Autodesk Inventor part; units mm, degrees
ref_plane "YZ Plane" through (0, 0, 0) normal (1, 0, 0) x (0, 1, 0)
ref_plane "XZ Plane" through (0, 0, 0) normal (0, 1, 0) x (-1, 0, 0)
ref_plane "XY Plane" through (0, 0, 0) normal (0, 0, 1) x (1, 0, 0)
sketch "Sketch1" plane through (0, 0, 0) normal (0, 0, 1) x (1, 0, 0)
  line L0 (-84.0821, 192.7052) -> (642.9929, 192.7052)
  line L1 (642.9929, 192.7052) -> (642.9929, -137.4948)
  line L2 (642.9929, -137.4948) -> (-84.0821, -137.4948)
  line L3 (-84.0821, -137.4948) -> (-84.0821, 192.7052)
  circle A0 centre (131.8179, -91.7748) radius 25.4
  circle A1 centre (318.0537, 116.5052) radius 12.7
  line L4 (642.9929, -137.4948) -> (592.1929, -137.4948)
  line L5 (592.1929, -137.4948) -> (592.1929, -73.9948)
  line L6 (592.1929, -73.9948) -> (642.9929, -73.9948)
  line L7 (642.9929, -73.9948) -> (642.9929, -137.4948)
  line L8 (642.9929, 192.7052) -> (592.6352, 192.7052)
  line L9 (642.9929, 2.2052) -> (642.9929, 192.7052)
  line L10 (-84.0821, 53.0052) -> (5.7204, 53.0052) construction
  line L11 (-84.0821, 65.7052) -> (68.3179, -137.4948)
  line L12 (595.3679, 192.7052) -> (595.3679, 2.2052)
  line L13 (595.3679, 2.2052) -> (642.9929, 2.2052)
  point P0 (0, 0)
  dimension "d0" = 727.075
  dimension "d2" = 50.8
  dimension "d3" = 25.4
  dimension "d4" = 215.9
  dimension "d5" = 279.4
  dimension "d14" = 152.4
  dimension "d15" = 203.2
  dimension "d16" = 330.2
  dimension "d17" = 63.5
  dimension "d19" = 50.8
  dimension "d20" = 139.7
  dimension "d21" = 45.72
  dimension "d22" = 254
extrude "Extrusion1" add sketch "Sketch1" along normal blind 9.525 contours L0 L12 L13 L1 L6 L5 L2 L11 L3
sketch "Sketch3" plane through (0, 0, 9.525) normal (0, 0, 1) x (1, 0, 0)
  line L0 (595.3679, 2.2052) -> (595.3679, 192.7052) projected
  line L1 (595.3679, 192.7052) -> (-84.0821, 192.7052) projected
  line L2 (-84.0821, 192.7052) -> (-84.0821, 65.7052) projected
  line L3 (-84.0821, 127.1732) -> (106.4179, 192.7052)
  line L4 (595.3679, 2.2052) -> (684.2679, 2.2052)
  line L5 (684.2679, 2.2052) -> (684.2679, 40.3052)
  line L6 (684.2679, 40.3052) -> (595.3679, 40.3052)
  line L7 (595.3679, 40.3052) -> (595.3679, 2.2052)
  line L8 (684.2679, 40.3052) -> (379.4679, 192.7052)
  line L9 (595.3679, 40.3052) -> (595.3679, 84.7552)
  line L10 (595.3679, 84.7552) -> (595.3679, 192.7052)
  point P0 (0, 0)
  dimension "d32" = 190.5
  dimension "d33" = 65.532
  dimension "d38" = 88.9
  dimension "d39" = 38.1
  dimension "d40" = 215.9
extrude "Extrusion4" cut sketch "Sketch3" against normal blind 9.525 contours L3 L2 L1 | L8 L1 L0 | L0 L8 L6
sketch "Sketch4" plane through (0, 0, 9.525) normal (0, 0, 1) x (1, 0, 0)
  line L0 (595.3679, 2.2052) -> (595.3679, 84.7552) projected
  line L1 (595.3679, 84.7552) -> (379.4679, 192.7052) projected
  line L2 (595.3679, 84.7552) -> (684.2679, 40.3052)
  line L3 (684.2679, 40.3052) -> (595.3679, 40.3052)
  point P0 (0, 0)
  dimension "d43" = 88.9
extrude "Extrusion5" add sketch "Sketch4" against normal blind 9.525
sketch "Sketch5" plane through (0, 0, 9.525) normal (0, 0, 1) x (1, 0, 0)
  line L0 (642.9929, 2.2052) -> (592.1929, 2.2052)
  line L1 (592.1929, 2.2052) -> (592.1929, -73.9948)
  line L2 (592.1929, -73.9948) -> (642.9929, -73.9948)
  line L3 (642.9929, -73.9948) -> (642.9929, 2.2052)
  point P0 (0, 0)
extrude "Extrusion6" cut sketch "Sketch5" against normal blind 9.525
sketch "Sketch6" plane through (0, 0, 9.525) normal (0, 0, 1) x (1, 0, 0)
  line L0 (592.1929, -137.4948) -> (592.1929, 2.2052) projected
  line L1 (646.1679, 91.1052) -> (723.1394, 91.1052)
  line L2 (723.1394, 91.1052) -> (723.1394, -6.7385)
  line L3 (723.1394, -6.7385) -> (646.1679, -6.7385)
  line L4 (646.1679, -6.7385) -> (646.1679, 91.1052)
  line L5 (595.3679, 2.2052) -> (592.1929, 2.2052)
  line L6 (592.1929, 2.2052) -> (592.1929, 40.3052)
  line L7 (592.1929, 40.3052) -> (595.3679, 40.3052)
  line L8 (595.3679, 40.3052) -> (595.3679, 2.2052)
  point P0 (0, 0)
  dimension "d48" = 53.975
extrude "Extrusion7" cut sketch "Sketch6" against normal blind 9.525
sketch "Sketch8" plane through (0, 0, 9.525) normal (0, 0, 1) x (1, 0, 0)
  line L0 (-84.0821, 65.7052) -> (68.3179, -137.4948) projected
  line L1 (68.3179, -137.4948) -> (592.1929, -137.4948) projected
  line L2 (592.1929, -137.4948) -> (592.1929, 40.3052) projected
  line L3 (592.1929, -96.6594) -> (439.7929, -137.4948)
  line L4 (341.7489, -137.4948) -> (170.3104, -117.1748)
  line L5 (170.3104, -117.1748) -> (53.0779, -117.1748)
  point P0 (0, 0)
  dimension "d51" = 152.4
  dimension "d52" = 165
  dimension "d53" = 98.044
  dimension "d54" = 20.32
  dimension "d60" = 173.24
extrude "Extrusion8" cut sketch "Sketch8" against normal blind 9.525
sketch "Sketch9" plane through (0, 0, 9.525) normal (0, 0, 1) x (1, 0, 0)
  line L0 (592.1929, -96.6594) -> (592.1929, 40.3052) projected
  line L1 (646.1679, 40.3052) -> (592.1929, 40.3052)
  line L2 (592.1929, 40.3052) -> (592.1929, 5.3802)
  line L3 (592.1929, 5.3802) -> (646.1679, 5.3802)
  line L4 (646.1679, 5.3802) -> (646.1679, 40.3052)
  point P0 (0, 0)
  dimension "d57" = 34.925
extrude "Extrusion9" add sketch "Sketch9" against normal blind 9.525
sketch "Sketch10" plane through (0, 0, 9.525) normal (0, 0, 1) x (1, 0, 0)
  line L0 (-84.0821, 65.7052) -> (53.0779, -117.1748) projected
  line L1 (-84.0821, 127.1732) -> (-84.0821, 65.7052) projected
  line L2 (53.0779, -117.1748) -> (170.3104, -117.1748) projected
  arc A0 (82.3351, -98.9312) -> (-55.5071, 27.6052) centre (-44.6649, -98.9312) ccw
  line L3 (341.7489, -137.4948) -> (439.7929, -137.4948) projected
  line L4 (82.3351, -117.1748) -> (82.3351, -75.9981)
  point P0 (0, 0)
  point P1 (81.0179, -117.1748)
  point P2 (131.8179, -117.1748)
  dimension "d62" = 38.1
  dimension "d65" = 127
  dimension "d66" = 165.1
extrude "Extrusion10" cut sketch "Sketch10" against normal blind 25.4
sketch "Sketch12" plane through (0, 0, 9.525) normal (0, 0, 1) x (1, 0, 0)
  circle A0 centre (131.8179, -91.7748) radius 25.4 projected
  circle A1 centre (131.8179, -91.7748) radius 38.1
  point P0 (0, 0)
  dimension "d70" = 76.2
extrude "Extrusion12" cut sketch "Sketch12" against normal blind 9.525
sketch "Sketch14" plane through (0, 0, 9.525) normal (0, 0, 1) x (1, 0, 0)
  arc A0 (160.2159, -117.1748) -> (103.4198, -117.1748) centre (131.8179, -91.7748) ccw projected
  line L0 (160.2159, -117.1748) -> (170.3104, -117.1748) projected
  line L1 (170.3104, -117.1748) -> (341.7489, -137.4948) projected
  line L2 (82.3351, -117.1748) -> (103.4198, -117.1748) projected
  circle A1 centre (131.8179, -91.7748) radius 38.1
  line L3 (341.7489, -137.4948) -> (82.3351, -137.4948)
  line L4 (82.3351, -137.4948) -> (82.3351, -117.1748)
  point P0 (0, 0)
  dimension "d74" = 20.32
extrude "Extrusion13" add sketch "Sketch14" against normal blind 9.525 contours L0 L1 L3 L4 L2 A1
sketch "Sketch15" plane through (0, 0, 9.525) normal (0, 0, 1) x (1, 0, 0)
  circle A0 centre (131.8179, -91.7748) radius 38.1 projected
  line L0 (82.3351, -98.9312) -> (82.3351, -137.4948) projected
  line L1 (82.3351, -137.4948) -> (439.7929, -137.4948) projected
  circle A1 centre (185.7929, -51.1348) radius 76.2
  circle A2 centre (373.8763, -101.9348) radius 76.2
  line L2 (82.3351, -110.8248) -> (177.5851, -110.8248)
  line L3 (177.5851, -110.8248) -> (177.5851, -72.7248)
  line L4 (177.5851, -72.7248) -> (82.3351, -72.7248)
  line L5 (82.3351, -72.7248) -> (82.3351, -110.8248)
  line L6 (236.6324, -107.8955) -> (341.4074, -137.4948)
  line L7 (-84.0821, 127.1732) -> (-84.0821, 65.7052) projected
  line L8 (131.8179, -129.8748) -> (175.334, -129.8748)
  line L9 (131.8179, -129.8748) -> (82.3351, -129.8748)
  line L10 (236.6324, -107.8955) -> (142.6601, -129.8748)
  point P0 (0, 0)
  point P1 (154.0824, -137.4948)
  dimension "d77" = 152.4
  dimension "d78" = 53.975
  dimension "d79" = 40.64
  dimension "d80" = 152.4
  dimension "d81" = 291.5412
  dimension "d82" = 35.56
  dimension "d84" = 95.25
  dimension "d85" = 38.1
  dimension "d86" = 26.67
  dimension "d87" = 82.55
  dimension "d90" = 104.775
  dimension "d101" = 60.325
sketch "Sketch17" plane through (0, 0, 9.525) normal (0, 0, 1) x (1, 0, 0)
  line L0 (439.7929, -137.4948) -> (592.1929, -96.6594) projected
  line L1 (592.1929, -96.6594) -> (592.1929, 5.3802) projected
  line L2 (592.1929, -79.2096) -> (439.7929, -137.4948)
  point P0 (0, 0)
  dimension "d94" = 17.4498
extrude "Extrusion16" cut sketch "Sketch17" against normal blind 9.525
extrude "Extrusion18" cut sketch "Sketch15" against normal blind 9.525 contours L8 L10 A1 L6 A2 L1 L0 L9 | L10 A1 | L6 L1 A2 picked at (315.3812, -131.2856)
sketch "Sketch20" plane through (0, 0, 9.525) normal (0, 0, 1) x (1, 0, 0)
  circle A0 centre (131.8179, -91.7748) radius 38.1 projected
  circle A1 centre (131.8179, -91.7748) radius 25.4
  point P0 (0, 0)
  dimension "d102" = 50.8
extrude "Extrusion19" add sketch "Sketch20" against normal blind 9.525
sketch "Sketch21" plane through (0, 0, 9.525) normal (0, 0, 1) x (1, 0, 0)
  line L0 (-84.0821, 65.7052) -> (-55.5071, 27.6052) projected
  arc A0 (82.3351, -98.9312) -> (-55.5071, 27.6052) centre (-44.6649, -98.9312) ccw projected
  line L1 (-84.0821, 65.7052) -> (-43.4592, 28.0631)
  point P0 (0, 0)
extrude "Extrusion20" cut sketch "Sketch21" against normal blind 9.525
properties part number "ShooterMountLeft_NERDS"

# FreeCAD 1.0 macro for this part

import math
import FreeCAD as App
import Part
import Sketcher

V = App.Vector
Q = App.Units.Quantity

doc = App.newDocument("Part")
body = doc.addObject("PartDesign::Body", "Body")

# Sketch on XY plane
sketch1 = body.newObject("Sketcher::SketchObject", "Sketch")
sketch1.AttachmentSupport = (doc.getObject("XY_Plane"), [""])
sketch1.MapMode = "FlatFace"
sketch1.addGeometry(Part.LineSegment(V(595, 193, 0), V(-84, 193, 0)), False)
sketch1.addGeometry(Part.LineSegment(V(-84, 193, 0), V(-84, 66, 0)), False)
sketch1.addGeometry(Part.LineSegment(V(-84, 66, 0), V(68, -137, 0)), False)
sketch1.addGeometry(Part.LineSegment(V(68, -137, 0), V(592, -137, 0)), False)
sketch1.addGeometry(Part.LineSegment(V(592, -137, 0), V(592, -74, 0)), False)
sketch1.addGeometry(Part.LineSegment(V(592, -74, 0), V(643, -74, 0)), False)
sketch1.addGeometry(Part.LineSegment(V(643, -74, 0), V(643, 2, 0)), False)
sketch1.addGeometry(Part.LineSegment(V(643, 2, 0), V(595, 2, 0)), False)
sketch1.addGeometry(Part.LineSegment(V(595, 2, 0), V(595, 193, 0)), False)
sketch1.addGeometry(Part.Circle(V(132, -92, 0), V(0, 0, 1), 25), False)
sketch1.addGeometry(Part.Circle(V(318, 117, 0), V(0, 0, 1), 13), False)
sketch1.addConstraint(Sketcher.Constraint("Coincident", 0, 2, 1, 1))
sketch1.addConstraint(Sketcher.Constraint("Coincident", 1, 2, 2, 1))
sketch1.addConstraint(Sketcher.Constraint("Coincident", 2, 2, 3, 1))
sketch1.addConstraint(Sketcher.Constraint("Coincident", 3, 2, 4, 1))
sketch1.addConstraint(Sketcher.Constraint("Coincident", 4, 2, 5, 1))
sketch1.addConstraint(Sketcher.Constraint("Coincident", 5, 2, 6, 1))
sketch1.addConstraint(Sketcher.Constraint("Coincident", 6, 2, 7, 1))
sketch1.addConstraint(Sketcher.Constraint("Coincident", 7, 2, 8, 1))
sketch1.addConstraint(Sketcher.Constraint("Coincident", 8, 2, 0, 1))
sketch1.addConstraint(Sketcher.Constraint("Horizontal", 0))
sketch1.addConstraint(Sketcher.Constraint("Vertical", 1))
sketch1.addConstraint(Sketcher.Constraint("Horizontal", 3))
sketch1.addConstraint(Sketcher.Constraint("Vertical", 4))
sketch1.addConstraint(Sketcher.Constraint("Horizontal", 5))
sketch1.addConstraint(Sketcher.Constraint("Vertical", 6))
sketch1.addConstraint(Sketcher.Constraint("Horizontal", 7))
sketch1.addConstraint(Sketcher.Constraint("Vertical", 8))
sketch1.addConstraint(Sketcher.Constraint("Diameter", 9, Q("2 in")))
sketch1.addConstraint(Sketcher.Constraint("Diameter", 10, Q("1 in")))
sketch1.addConstraint(Sketcher.Constraint("DistanceX", 5, 1, 5, 2, Q("2 in")))
sketch1.addConstraint(Sketcher.Constraint("Distance", 2, Q("10 in")))
sketch1.addConstraint(Sketcher.Constraint("DistanceY", 4, 1, 4, 2, Q("2.5 in")))
sketch1.addConstraint(Sketcher.Constraint("DistanceY", 1, 2, 10, 3, Q("2 in")))
sketch1.addConstraint(Sketcher.Constraint("DistanceX", 1, 2, 2, 2, Q("6 in")))
sketch1.addConstraint(Sketcher.Constraint("DistanceY", 2, 2, 0, 2, Q("13 in")))
sketch1.addConstraint(Sketcher.Constraint("DistanceX", 0, 2, 9, 3, Q("8.5 in")))
sketch1.addConstraint(Sketcher.Constraint("DistanceY", 2, 2, 9, 3, Q("1.8 in")))
sketch1.addConstraint(Sketcher.Constraint("DistanceY", 3, 2, 6, 2, Q("5.5 in")))
sketch1.addConstraint(Sketcher.Constraint("DistanceX", 0, 2, 0, 1, Q("26.75 in")))
sketch1.addConstraint(Sketcher.Constraint("DistanceX", 3, 1, 3, 2, Q("20.625 in")))
sketch1.addConstraint(Sketcher.Constraint("DistanceX", -1, 1, 10, 3, Q("12.5218 in")))
sketch1.addConstraint(Sketcher.Constraint("DistanceX", -1, 1, 9, 3, Q("131.818 mm")))
sketch1.addConstraint(Sketcher.Constraint("DistanceY", 9, 3, -1, 1, Q("91.7748 mm")))
pad1 = body.newObject("PartDesign::Pad", "Pad")
pad1.Profile = sketch1
pad1.Length = Q("0.375 in")

# Sketch on XY plane
sketch2 = body.newObject("Sketcher::SketchObject", "Sketch001")
sketch2.AttachmentSupport = (doc.getObject("XY_Plane"), [""])
sketch2.MapMode = "FlatFace"
sketch2.AttachmentOffset = App.Placement(V(0, 0, 0.375 * 25.4), App.Rotation())
sketch2.addGeometry(Part.LineSegment(V(-84, 127, 0), V(106, 193, 0)), False)
sketch2.addGeometry(Part.LineSegment(V(106, 193, 0), V(-84, 193, 0)), False)
sketch2.addGeometry(Part.LineSegment(V(-84, 193, 0), V(-84, 127, 0)), False)
sketch2.addGeometry(Part.LineSegment(V(379, 193, 0), V(595, 85, 0)), False)
sketch2.addGeometry(Part.LineSegment(V(595, 85, 0), V(595, 193, 0)), False)
sketch2.addGeometry(Part.LineSegment(V(595, 193, 0), V(379, 193, 0)), False)
sketch2.addGeometry(Part.LineSegment(V(595, 85, 0), V(595, 40, 0)), False)
sketch2.addGeometry(Part.LineSegment(V(595, 40, 0), V(684, 40, 0)), False)
sketch2.addGeometry(Part.LineSegment(V(684, 40, 0), V(595, 85, 0)), False)
sketch2.addConstraint(Sketcher.Constraint("Coincident", 0, 2, 1, 1))
sketch2.addConstraint(Sketcher.Constraint("Coincident", 1, 2, 2, 1))
sketch2.addConstraint(Sketcher.Constraint("Coincident", 2, 2, 0, 1))
sketch2.addConstraint(Sketcher.Constraint("Coincident", 3, 2, 4, 1))
sketch2.addConstraint(Sketcher.Constraint("Coincident", 4, 2, 5, 1))
sketch2.addConstraint(Sketcher.Constraint("Coincident", 5, 2, 3, 1))
sketch2.addConstraint(Sketcher.Constraint("Coincident", 6, 2, 7, 1))
sketch2.addConstraint(Sketcher.Constraint("Coincident", 7, 2, 8, 1))
sketch2.addConstraint(Sketcher.Constraint("Coincident", 8, 2, 6, 1))
sketch2.addConstraint(Sketcher.Constraint("Horizontal", 1))
sketch2.addConstraint(Sketcher.Constraint("Vertical", 2))
sketch2.addConstraint(Sketcher.Constraint("Vertical", 4))
sketch2.addConstraint(Sketcher.Constraint("Horizontal", 5))
sketch2.addConstraint(Sketcher.Constraint("Vertical", 6))
sketch2.addConstraint(Sketcher.Constraint("Horizontal", 7))
sketch2.addConstraint(Sketcher.Constraint("Coincident", 8, 2, 3, 2))
sketch2.addConstraint(Sketcher.Constraint("Parallel", 3, 8))
sketch2.addConstraint(Sketcher.Constraint("Horizontal", 1, 2, 4, 2))
sketch2.addConstraint(Sketcher.Constraint("DistanceX", 1, 2, 1, 1, Q("7.5 in")))
sketch2.addConstraint(Sketcher.Constraint("DistanceX", 5, 2, 5, 1, Q("8.5 in")))
sketch2.addConstraint(Sketcher.Constraint("DistanceX", 7, 1, 7, 2, Q("3.5 in")))
sketch2.addConstraint(Sketcher.Constraint("DistanceY", 2, 2, 2, 1, Q("2.58 in")))
sketch2.addConstraint(Sketcher.Constraint("DistanceY", 6, 2, 4, 2, Q("6 in")))
sketch2.addConstraint(Sketcher.Constraint("DistanceX", 0, 2, 3, 2, Q("19.25 in")))
sketch2.addConstraint(Sketcher.Constraint("DistanceX", -1, 1, 0, 2, Q("106.418 mm")))
sketch2.addConstraint(Sketcher.Constraint("DistanceY", -1, 1, 0, 2, Q("192.7052 mm")))
pocket1 = body.newObject("PartDesign::Pocket", "Pocket")
pocket1.Profile = sketch2
pocket1.Length = Q("0.375 in")

# Sketch on XY plane
sketch3 = body.newObject("Sketcher::SketchObject", "Sketch002")
sketch3.AttachmentSupport = (doc.getObject("XY_Plane"), [""])
sketch3.MapMode = "FlatFace"
sketch3.AttachmentOffset = App.Placement(V(0, 0, 0.375 * 25.4), App.Rotation())
sketch3.addGeometry(Part.LineSegment(V(595, 85, 0), V(595, 40, 0)), False)
sketch3.addGeometry(Part.LineSegment(V(595, 40, 0), V(684, 40, 0)), False)
sketch3.addGeometry(Part.LineSegment(V(684, 40, 0), V(595, 85, 0)), False)
sketch3.addConstraint(Sketcher.Constraint("Coincident", 0, 2, 1, 1))
sketch3.addConstraint(Sketcher.Constraint("Coincident", 1, 2, 2, 1))
sketch3.addConstraint(Sketcher.Constraint("Coincident", 2, 2, 0, 1))
sketch3.addConstraint(Sketcher.Constraint("Vertical", 0))
sketch3.addConstraint(Sketcher.Constraint("Horizontal", 1))
sketch3.addConstraint(Sketcher.Constraint("DistanceX", 1, 1, 1, 2, Q("3.5 in")))
sketch3.addConstraint(Sketcher.Constraint("DistanceY", 0, 2, 0, 1, Q("1.75 in")))
sketch3.addConstraint(Sketcher.Constraint("DistanceX", -1, 1, 0, 2, Q("595.368 mm")))
sketch3.addConstraint(Sketcher.Constraint("DistanceY", -1, 1, 0, 2, Q("40.3052 mm")))
pad2 = body.newObject("PartDesign::Pad", "Pad001")
pad2.Profile = sketch3
pad2.Length = Q("0.375 in")
pad2.Reversed = True

# Sketch on XY plane
sketch4 = body.newObject("Sketcher::SketchObject", "Sketch003")
sketch4.AttachmentSupport = (doc.getObject("XY_Plane"), [""])
sketch4.MapMode = "FlatFace"
sketch4.AttachmentOffset = App.Placement(V(0, 0, 0.375 * 25.4), App.Rotation())
sketch4.addGeometry(Part.LineSegment(V(643, -74, 0), V(643, 2, 0)), False)
sketch4.addGeometry(Part.LineSegment(V(643, 2, 0), V(592, 2, 0)), False)
sketch4.addGeometry(Part.LineSegment(V(592, 2, 0), V(592, -74, 0)), False)
sketch4.addGeometry(Part.LineSegment(V(592, -74, 0), V(643, -74, 0)), False)
sketch4.addConstraint(Sketcher.Constraint("Coincident", 0, 2, 1, 1))
sketch4.addConstraint(Sketcher.Constraint("Coincident", 1, 2, 2, 1))
sketch4.addConstraint(Sketcher.Constraint("Coincident", 2, 2, 3, 1))
sketch4.addConstraint(Sketcher.Constraint("Coincident", 3, 2, 0, 1))
sketch4.addConstraint(Sketcher.Constraint("Vertical", 0))
sketch4.addConstraint(Sketcher.Constraint("Horizontal", 1))
sketch4.addConstraint(Sketcher.Constraint("Vertical", 2))
sketch4.addConstraint(Sketcher.Constraint("Horizontal", 3))
sketch4.addConstraint(Sketcher.Constraint("DistanceX", 1, 2, 1, 1, Q("2 in")))
sketch4.addConstraint(Sketcher.Constraint("DistanceY", 0, 1, 0, 2, Q("3 in")))
sketch4.addConstraint(Sketcher.Constraint("DistanceX", -1, 1, 0, 2, Q("642.993 mm")))
sketch4.addConstraint(Sketcher.Constraint("DistanceY", -1, 1, 0, 2, Q("2.2052 mm")))
pocket2 = body.newObject("PartDesign::Pocket", "Pocket001")
pocket2.Profile = sketch4
pocket2.Length = Q("0.375 in")

# Sketch on XY plane
sketch5 = body.newObject("Sketcher::SketchObject", "Sketch004")
sketch5.AttachmentSupport = (doc.getObject("XY_Plane"), [""])
sketch5.MapMode = "FlatFace"
sketch5.AttachmentOffset = App.Placement(V(0, 0, 0.375 * 25.4), App.Rotation())
sketch5.addGeometry(Part.LineSegment(V(723.1, 91.1, 0), V(646.2, 91.1, 0)), False)
sketch5.addGeometry(Part.LineSegment(V(646.2, 91.1, 0), V(646.2, -6.7, 0)), False)
sketch5.addGeometry(Part.LineSegment(V(646.2, -6.7, 0), V(723.1, -6.7, 0)), False)
sketch5.addGeometry(Part.LineSegment(V(723.1, -6.7, 0), V(723.1, 91.1, 0)), False)
sketch5.addGeometry(Part.LineSegment(V(592.2, 2.2, 0), V(595.4, 2.2, 0)), False)
sketch5.addGeometry(Part.LineSegment(V(595.4, 2.2, 0), V(595.4, 40.3, 0)), False)
sketch5.addGeometry(Part.LineSegment(V(595.4, 40.3, 0), V(592.2, 40.3, 0)), False)
sketch5.addGeometry(Part.LineSegment(V(592.2, 40.3, 0), V(592.2, 2.2, 0)), False)
sketch5.addConstraint(Sketcher.Constraint("Coincident", 0, 2, 1, 1))
sketch5.addConstraint(Sketcher.Constraint("Coincident", 1, 2, 2, 1))
sketch5.addConstraint(Sketcher.Constraint("Coincident", 2, 2, 3, 1))
sketch5.addConstraint(Sketcher.Constraint("Coincident", 3, 2, 0, 1))
sketch5.addConstraint(Sketcher.Constraint("Coincident", 4, 2, 5, 1))
sketch5.addConstraint(Sketcher.Constraint("Coincident", 5, 2, 6, 1))
sketch5.addConstraint(Sketcher.Constraint("Coincident", 6, 2, 7, 1))
sketch5.addConstraint(Sketcher.Constraint("Coincident", 7, 2, 4, 1))
sketch5.addConstraint(Sketcher.Constraint("Horizontal", 0))
sketch5.addConstraint(Sketcher.Constraint("Vertical", 1))
sketch5.addConstraint(Sketcher.Constraint("Horizontal", 2))
sketch5.addConstraint(Sketcher.Constraint("Vertical", 3))
sketch5.addConstraint(Sketcher.Constraint("Horizontal", 4))
sketch5.addConstraint(Sketcher.Constraint("Vertical", 5))
sketch5.addConstraint(Sketcher.Constraint("Horizontal", 6))
sketch5.addConstraint(Sketcher.Constraint("Vertical", 7))
sketch5.addConstraint(Sketcher.Constraint("DistanceY", 5, 1, 5, 2, Q("1.5 in")))
sketch5.addConstraint(Sketcher.Constraint("DistanceX", 4, 2, 1, 2, Q("2 in")))
sketch5.addConstraint(Sketcher.Constraint("DistanceY", 5, 2, 0, 2, Q("2 in")))
sketch5.addConstraint(Sketcher.Constraint("DistanceX", 6, 2, 1, 2, Q("2.125 in")))
sketch5.addConstraint(Sketcher.Constraint("DistanceX", 0, 2, 0, 1, Q("76.9715 mm")))
sketch5.addConstraint(Sketcher.Constraint("DistanceY", 1, 2, 1, 1, Q("97.8437 mm")))
sketch5.addConstraint(Sketcher.Constraint("DistanceY", 1, 2, -1, 1, Q("0.2653 in")))
sketch5.addConstraint(Sketcher.Constraint("DistanceX", -1, 1, 0, 2, Q("646.168 mm")))
pocket3 = body.newObject("PartDesign::Pocket", "Pocket002")
pocket3.Profile = sketch5
pocket3.Length = Q("0.375 in")

# Sketch on XY plane
sketch6 = body.newObject("Sketcher::SketchObject", "Sketch005")
sketch6.AttachmentSupport = (doc.getObject("XY_Plane"), [""])
sketch6.MapMode = "FlatFace"
sketch6.AttachmentOffset = App.Placement(V(0, 0, 0.375 * 25.4), App.Rotation())
sketch6.addGeometry(Part.LineSegment(V(170, -117, 0), V(53, -117, 0)), False)
sketch6.addGeometry(Part.LineSegment(V(53, -117, 0), V(68, -137, 0)), False)
sketch6.addGeometry(Part.LineSegment(V(68, -137, 0), V(342, -137, 0)), False)
sketch6.addGeometry(Part.LineSegment(V(342, -137, 0), V(170, -117, 0)), False)
sketch6.addGeometry(Part.LineSegment(V(592, -97, 0), V(440, -137, 0)), False)
sketch6.addGeometry(Part.LineSegment(V(440, -137, 0), V(592, -137, 0)), False)
sketch6.addGeometry(Part.LineSegment(V(592, -137, 0), V(592, -97, 0)), False)
sketch6.addConstraint(Sketcher.Constraint("Coincident", 0, 2, 1, 1))
sketch6.addConstraint(Sketcher.Constraint("Coincident", 1, 2, 2, 1))
sketch6.addConstraint(Sketcher.Constraint("Coincident", 2, 2, 3, 1))
sketch6.addConstraint(Sketcher.Constraint("Coincident", 3, 2, 0, 1))
sketch6.addConstraint(Sketcher.Constraint("Coincident", 4, 2, 5, 1))
sketch6.addConstraint(Sketcher.Constraint("Coincident", 5, 2, 6, 1))
sketch6.addConstraint(Sketcher.Constraint("Coincident", 6, 2, 4, 1))
sketch6.addConstraint(Sketcher.Constraint("Horizontal", 0))
sketch6.addConstraint(Sketcher.Constraint("Horizontal", 2))
sketch6.addConstraint(Sketcher.Constraint("Horizontal", 5))
sketch6.addConstraint(Sketcher.Constraint("Vertical", 6))
sketch6.addConstraint(Sketcher.Constraint("Horizontal", 2, 2, 4, 2))
sketch6.addConstraint(Sketcher.Constraint("DistanceX", 5, 1, 5, 2, Q("6 in")))
sketch6.addConstraint(Sketcher.Constraint("Angle", 4, Q("-165 deg")))
sketch6.addConstraint(Sketcher.Constraint("DistanceY", 1, 2, 0, 2, Q("0.8 in")))
sketch6.addConstraint(Sketcher.Constraint("Angle", 3, Q("173.2405 deg")))
sketch6.addConstraint(Sketcher.Constraint("DistanceX", 2, 2, 4, 2, Q("3.86 in")))
sketch6.addConstraint(Sketcher.Constraint("Distance", 1, Q("1 in")))
sketch6.addConstraint(Sketcher.Constraint("DistanceX", 2, 1, 2, 2, Q("10.765 in")))
sketch6.addConstraint(Sketcher.Constraint("DistanceY", 6, 2, -1, 1, Q("3.8055 in")))
sketch6.addConstraint(Sketcher.Constraint("DistanceX", -1, 1, 0, 2, Q("53.078 mm")))
pocket4 = body.newObject("PartDesign::Pocket", "Pocket003")
pocket4.Profile = sketch6
pocket4.Length = Q("0.375 in")

# Sketch on XY plane
sketch7 = body.newObject("Sketcher::SketchObject", "Sketch006")
sketch7.AttachmentSupport = (doc.getObject("XY_Plane"), [""])
sketch7.MapMode = "FlatFace"
sketch7.AttachmentOffset = App.Placement(V(0, 0, 0.375 * 25.4), App.Rotation())
sketch7.addGeometry(Part.LineSegment(V(592, 40, 0), V(592, 5, 0)), False)
sketch7.addGeometry(Part.LineSegment(V(592, 5, 0), V(646, 5, 0)), False)
sketch7.addGeometry(Part.LineSegment(V(646, 5, 0), V(646, 40, 0)), False)
sketch7.addGeometry(Part.LineSegment(V(646, 40, 0), V(592, 40, 0)), False)
sketch7.addConstraint(Sketcher.Constraint("Coincident", 0, 2, 1, 1))
sketch7.addConstraint(Sketcher.Constraint("Coincident", 1, 2, 2, 1))
sketch7.addConstraint(Sketcher.Constraint("Coincident", 2, 2, 3, 1))
sketch7.addConstraint(Sketcher.Constraint("Coincident", 3, 2, 0, 1))
sketch7.addConstraint(Sketcher.Constraint("Vertical", 0))
sketch7.addConstraint(Sketcher.Constraint("Horizontal", 1))
sketch7.addConstraint(Sketcher.Constraint("Vertical", 2))
sketch7.addConstraint(Sketcher.Constraint("Horizontal", 3))
sketch7.addConstraint(Sketcher.Constraint("DistanceY", 0, 2, 0, 1, Q("1.375 in")))
sketch7.addConstraint(Sketcher.Constraint("DistanceX", 1, 1, 1, 2, Q("2.125 in")))
sketch7.addConstraint(Sketcher.Constraint("DistanceX", -1, 1, 0, 2, Q("592.193 mm")))
sketch7.addConstraint(Sketcher.Constraint("DistanceY", -1, 1, 0, 2, Q("5.3802 mm")))
pad3 = body.newObject("PartDesign::Pad", "Pad002")
pad3.Profile = sketch7
pad3.Length = Q("0.375 in")
pad3.Reversed = True

# Sketch on XY plane
sketch8 = body.newObject("Sketcher::SketchObject", "Sketch007")
sketch8.AttachmentSupport = (doc.getObject("XY_Plane"), [""])
sketch8.MapMode = "FlatFace"
sketch8.AttachmentOffset = App.Placement(V(0, 0, 0.375 * 25.4), App.Rotation())
sketch8.addGeometry(Part.ArcOfCircle(Part.Circle(V(-45, -99, 0), V(0, 0, 1), 127), math.radians(0), math.radians(95)), False)
sketch8.addGeometry(Part.LineSegment(V(-56, 28, 0), V(53, -117, 0)), False)
sketch8.addGeometry(Part.LineSegment(V(53, -117, 0), V(82, -117, 0)), False)
sketch8.addGeometry(Part.LineSegment(V(82, -117, 0), V(82, -99, 0)), False)
sketch8.addConstraint(Sketcher.Constraint("Coincident", 0, 2, 1, 1))
sketch8.addConstraint(Sketcher.Constraint("Coincident", 1, 2, 2, 1))
sketch8.addConstraint(Sketcher.Constraint("Coincident", 2, 2, 3, 1))
sketch8.addConstraint(Sketcher.Constraint("Tangent", 3, 2, 0, 1))
sketch8.addConstraint(Sketcher.Constraint("Horizontal", 2))
sketch8.addConstraint(Sketcher.Constraint("Vertical", 3))
sketch8.addConstraint(Sketcher.Constraint("Radius", 0, Q("5 in")))
sketch8.addConstraint(Sketcher.Constraint("DistanceY", 1, 2, 0, 2, Q("5.7 in")))
sketch8.addConstraint(Sketcher.Constraint("Angle", 1, Q("-53.13 deg")))
sketch8.addConstraint(Sketcher.Constraint("DistanceX", 2, 1, 2, 2, Q("29.2572 mm")))
sketch8.addConstraint(Sketcher.Constraint("DistanceX", 0, 3, -1, 1, Q("44.665 mm")))
sketch8.addConstraint(Sketcher.Constraint("DistanceY", 0, 3, -1, 1, Q("98.9312 mm")))
pocket5 = body.newObject("PartDesign::Pocket", "Pocket004")
pocket5.Profile = sketch8
pocket5.Length = Q("1 in")

# Sketch on XY plane
sketch9 = body.newObject("Sketcher::SketchObject", "Sketch008")
sketch9.AttachmentSupport = (doc.getObject("XY_Plane"), [""])
sketch9.MapMode = "FlatFace"
sketch9.AttachmentOffset = App.Placement(V(0, 0, 0.375 * 25.4), App.Rotation())
sketch9.addGeometry(Part.Circle(V(132, -92, 0), V(0, 0, 1), 38), False)
sketch9.addGeometry(Part.Circle(V(132, -92, 0), V(0, 0, 1), 25), False)
sketch9.addConstraint(Sketcher.Constraint("Coincident", 1, 3, 0, 3))
sketch9.addConstraint(Sketcher.Constraint("Diameter", 0, Q("3 in")))
sketch9.addConstraint(Sketcher.Constraint("Diameter", 1, Q("2 in")))
sketch9.addConstraint(Sketcher.Constraint("DistanceX", -1, 1, 0, 3, Q("131.818 mm")))
sketch9.addConstraint(Sketcher.Constraint("DistanceY", 0, 3, -1, 1, Q("91.7748 mm")))
pocket6 = body.newObject("PartDesign::Pocket", "Pocket005")
pocket6.Profile = sketch9
pocket6.Length = Q("0.375 in")

# Sketch on XY plane
sketch10 = body.newObject("Sketcher::SketchObject", "Sketch009")
sketch10.AttachmentSupport = (doc.getObject("XY_Plane"), [""])
sketch10.MapMode = "FlatFace"
sketch10.AttachmentOffset = App.Placement(V(0, 0, 0.375 * 25.4), App.Rotation())
sketch10.addGeometry(Part.LineSegment(V(170, -117, 0), V(160, -117, 0)), False)
sketch10.addGeometry(Part.ArcOfCircle(Part.Circle(V(132, -92, 0), V(0, 0, 1), 38), math.radians(-138), math.radians(-42)), False)
sketch10.addGeometry(Part.LineSegment(V(103, -117, 0), V(82, -117, 0)), False)
sketch10.addGeometry(Part.LineSegment(V(82, -117, 0), V(82, -137, 0)), False)
sketch10.addGeometry(Part.LineSegment(V(82, -137, 0), V(342, -137, 0)), False)
sketch10.addGeometry(Part.LineSegment(V(342, -137, 0), V(170, -117, 0)), False)
sketch10.addConstraint(Sketcher.Constraint("Coincident", 0, 2, 1, 2))
sketch10.addConstraint(Sketcher.Constraint("Coincident", 1, 1, 2, 1))
sketch10.addConstraint(Sketcher.Constraint("Coincident", 2, 2, 3, 1))
sketch10.addConstraint(Sketcher.Constraint("Coincident", 3, 2, 4, 1))
sketch10.addConstraint(Sketcher.Constraint("Coincident", 4, 2, 5, 1))
sketch10.addConstraint(Sketcher.Constraint("Coincident", 5, 2, 0, 1))
sketch10.addConstraint(Sketcher.Constraint("Horizontal", 0))
sketch10.addConstraint(Sketcher.Constraint("Horizontal", 2))
sketch10.addConstraint(Sketcher.Constraint("Vertical", 3))
sketch10.addConstraint(Sketcher.Constraint("Horizontal", 4))
sketch10.addConstraint(Sketcher.Constraint("Horizontal", 0, 2, 1, 1))
sketch10.addConstraint(Sketcher.Constraint("DistanceY", 3, 2, 3, 1, Q("0.8 in")))
sketch10.addConstraint(Sketcher.Constraint("Radius", 1, Q("1.5 in")))
sketch10.addConstraint(Sketcher.Constraint("DistanceY", 0, 2, 1, 3, Q("1 in")))
sketch10.addConstraint(Sketcher.Constraint("Angle", 5, Q("173.2405 deg")))
sketch10.addConstraint(Sketcher.Constraint("DistanceX", 2, 2, 2, 1, Q("0.8301 in")))
sketch10.addConstraint(Sketcher.Constraint("DistanceX", 1, 3, 4, 2, Q("8.265 in")))
sketch10.addConstraint(Sketcher.Constraint("DistanceX", -1, 1, 1, 3, Q("131.818 mm")))
sketch10.addConstraint(Sketcher.Constraint("DistanceY", 1, 3, -1, 1, Q("91.7748 mm")))
pad4 = body.newObject("PartDesign::Pad", "Pad003")
pad4.Profile = sketch10
pad4.Length = Q("0.375 in")
pad4.Reversed = True

# Sketch on XY plane
sketch11 = body.newObject("Sketcher::SketchObject", "Sketch010")
sketch11.AttachmentSupport = (doc.getObject("XY_Plane"), [""])
sketch11.MapMode = "FlatFace"
sketch11.AttachmentOffset = App.Placement(V(0, 0, 0.375 * 25.4), App.Rotation())
sketch11.addGeometry(Part.LineSegment(V(592, -79, 0), V(440, -137, 0)), False)
sketch11.addGeometry(Part.LineSegment(V(440, -137, 0), V(592, -97, 0)), False)
sketch11.addGeometry(Part.LineSegment(V(592, -97, 0), V(592, -79, 0)), False)
sketch11.addConstraint(Sketcher.Constraint("Coincident", 0, 2, 1, 1))
sketch11.addConstraint(Sketcher.Constraint("Coincident", 1, 2, 2, 1))
sketch11.addConstraint(Sketcher.Constraint("Coincident", 2, 2, 0, 1))
sketch11.addConstraint(Sketcher.Constraint("Vertical", 2))
sketch11.addConstraint(Sketcher.Constraint("DistanceY", 2, 1, 2, 2, Q("0.687 in")))
sketch11.addConstraint(Sketcher.Constraint("Angle", 1, Q("15 deg")))
sketch11.addConstraint(Sketcher.Constraint("DistanceX", 0, 2, 1, 2, Q("6 in")))
sketch11.addConstraint(Sketcher.Constraint("DistanceY", 1, 2, -1, 1, Q("3.8055 in")))
sketch11.addConstraint(Sketcher.Constraint("DistanceX", -1, 1, 0, 2, Q("439.793 mm")))
pocket7 = body.newObject("PartDesign::Pocket", "Pocket006")
pocket7.Profile = sketch11
pocket7.Length = Q("0.375 in")

# Sketch on XY plane
sketch12 = body.newObject("Sketcher::SketchObject", "Sketch011")
sketch12.AttachmentSupport = (doc.getObject("XY_Plane"), [""])
sketch12.MapMode = "FlatFace"
sketch12.AttachmentOffset = App.Placement(V(0, 0, 0.375 * 25.4), App.Rotation())
sketch12.addGeometry(Part.LineSegment(V(143, -130, 0), V(82, -130, 0)), False)
sketch12.addGeometry(Part.LineSegment(V(82, -130, 0), V(82, -137, 0)), False)
sketch12.addGeometry(Part.LineSegment(V(82, -137, 0), V(341, -137, 0)), False)
sketch12.addGeometry(Part.LineSegment(V(341, -137, 0), V(237, -108, 0)), False)
sketch12.addGeometry(Part.LineSegment(V(237, -108, 0), V(143, -130, 0)), False)
sketch12.addConstraint(Sketcher.Constraint("Coincident", 0, 2, 1, 1))
sketch12.addConstraint(Sketcher.Constraint("Coincident", 1, 2, 2, 1))
sketch12.addConstraint(Sketcher.Constraint("Coincident", 2, 2, 3, 1))
sketch12.addConstraint(Sketcher.Constraint("Coincident", 3, 2, 4, 1))
sketch12.addConstraint(Sketcher.Constraint("Coincident", 4, 2, 0, 1))
sketch12.addConstraint(Sketcher.Constraint("Horizontal", 0))
sketch12.addConstraint(Sketcher.Constraint("Vertical", 1))
sketch12.addConstraint(Sketcher.Constraint("Horizontal", 2))
sketch12.addConstraint(Sketcher.Constraint("DistanceX", 0, 2, 0, 1, Q("2.375 in")))
sketch12.addConstraint(Sketcher.Constraint("DistanceY", 1, 2, 1, 1, Q("0.3 in")))
sketch12.addConstraint(Sketcher.Constraint("DistanceX", 3, 2, 2, 2, Q("4.125 in")))
sketch12.addConstraint(Sketcher.Constraint("DistanceX", 2, 1, 2, 2, Q("10.1997 in")))
sketch12.addConstraint(Sketcher.Constraint("Distance", 3, Q("108.8757 mm")))
sketch12.addConstraint(Sketcher.Constraint("DistanceX", -1, 1, 0, 2, Q("82.335 mm")))
sketch12.addConstraint(Sketcher.Constraint("DistanceY", 0, 2, -1, 1, Q("129.8748 mm")))
pocket8 = body.newObject("PartDesign::Pocket", "Pocket007")
pocket8.Profile = sketch12
pocket8.Length = Q("0.375 in")

# Sketch on XY plane
sketch13 = body.newObject("Sketcher::SketchObject", "Sketch012")
sketch13.AttachmentSupport = (doc.getObject("XY_Plane"), [""])
sketch13.MapMode = "FlatFace"
sketch13.AttachmentOffset = App.Placement(V(0, 0, 0.375 * 25.4), App.Rotation())
sketch13.addGeometry(Part.Circle(V(132, -92, 0), V(0, 0, 1), 38), False)
sketch13.addGeometry(Part.Circle(V(132, -92, 0), V(0, 0, 1), 25), False)
sketch13.addConstraint(Sketcher.Constraint("Coincident", 1, 3, 0, 3))
sketch13.addConstraint(Sketcher.Constraint("Diameter", 1, Q("2 in")))
sketch13.addConstraint(Sketcher.Constraint("Diameter", 0, Q("3 in")))
sketch13.addConstraint(Sketcher.Constraint("DistanceX", -1, 1, 0, 3, Q("131.818 mm")))
sketch13.addConstraint(Sketcher.Constraint("DistanceY", 0, 3, -1, 1, Q("91.7748 mm")))
pad5 = body.newObject("PartDesign::Pad", "Pad004")
pad5.Profile = sketch13
pad5.Length = Q("0.375 in")
pad5.Reversed = True

# Sketch on XY plane
sketch14 = body.newObject("Sketcher::SketchObject", "Sketch013")
sketch14.AttachmentSupport = (doc.getObject("XY_Plane"), [""])
sketch14.MapMode = "FlatFace"
sketch14.AttachmentOffset = App.Placement(V(0, 0, 0.375 * 25.4), App.Rotation())
sketch14.addGeometry(Part.LineSegment(V(-43, 28, 0), V(-84, 66, 0)), False)
sketch14.addGeometry(Part.LineSegment(V(-84, 66, 0), V(-56, 28, 0)), False)
sketch14.addGeometry(Part.ArcOfCircle(Part.Circle(V(-45, -99, 0), V(0, 0, 1), 127), math.radians(89.46), math.radians(94.9)), False)
sketch14.addConstraint(Sketcher.Constraint("Coincident", 0, 2, 1, 1))
sketch14.addConstraint(Sketcher.Constraint("Coincident", 1, 2, 2, 2))
sketch14.addConstraint(Sketcher.Constraint("Coincident", 2, 1, 0, 1))
sketch14.addConstraint(Sketcher.Constraint("Radius", 2, Q("5 in")))
sketch14.addConstraint(Sketcher.Constraint("DistanceY", 1, 2, 0, 2, Q("1.5 in")))
sketch14.addConstraint(Sketcher.Constraint("Angle", 0, Q("137.181 deg")))
sketch14.addConstraint(Sketcher.Constraint("Angle", 1, Q("-53.13 deg")))
sketch14.addConstraint(Sketcher.Constraint("DistanceX", 2, 1, -1, 1, Q("1.711 in")))
sketch14.addConstraint(Sketcher.Constraint("Distance", 0, Q("55.3818 mm")))
sketch14.addConstraint(Sketcher.Constraint("DistanceY", 2, 3, -1, 1, Q("98.9312 mm")))
pocket9 = body.newObject("PartDesign::Pocket", "Pocket008")
pocket9.Profile = sketch14
pocket9.Length = Q("0.375 in")

doc.recompute()
